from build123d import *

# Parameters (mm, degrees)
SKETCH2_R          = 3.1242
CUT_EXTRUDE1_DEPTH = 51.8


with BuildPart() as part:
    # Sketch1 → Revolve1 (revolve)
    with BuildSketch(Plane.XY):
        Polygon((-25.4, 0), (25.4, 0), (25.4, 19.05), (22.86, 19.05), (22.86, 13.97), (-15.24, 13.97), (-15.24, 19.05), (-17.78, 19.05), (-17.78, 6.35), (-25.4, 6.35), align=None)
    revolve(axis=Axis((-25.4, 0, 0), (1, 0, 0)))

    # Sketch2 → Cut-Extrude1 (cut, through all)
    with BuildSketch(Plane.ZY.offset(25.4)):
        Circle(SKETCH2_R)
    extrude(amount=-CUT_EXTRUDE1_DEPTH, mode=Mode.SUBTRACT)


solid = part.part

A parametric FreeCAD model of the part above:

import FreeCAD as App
import Part
import Sketcher

V = App.Vector
Q = App.Units.Quantity


def add_polygon(sketch, points):
    """Adds a closed chain of lines whose ends are joined by coincident constraints."""
    first, n = sketch.GeometryCount, len(points)
    for a, b in zip(points, points[1:] + points[:1]):
        sketch.addGeometry(Part.LineSegment(App.Vector(*a, 0), App.Vector(*b, 0)), False)
    for i in range(n):
        sketch.addConstraint(Sketcher.Constraint("Coincident", first + i, 2, first + (i + 1) % n, 1))

doc = App.newDocument("Part")
body = doc.addObject("PartDesign::Body", "Body")

sketch1 = doc.addObject("Sketcher::SketchObject", "Sketch")
body.addObject(sketch1)
sketch1.AttachmentSupport = (doc.XY_Plane, [""])
sketch1.MapMode = "FlatFace"
add_polygon(sketch1, [(-25.4, 0), (25.4, 0), (25.4, 19.1), (22.9, 19.1), (22.9, 14), (-15.2, 14), (-15.2, 19.1), (-17.8, 19.1), (-17.8, 6.3), (-25.4, 6.3)])
sketch1.addConstraint([
    Sketcher.Constraint("Horizontal", 0),
    Sketcher.Constraint("Vertical", 1),
    Sketcher.Constraint("Horizontal", 2),
    Sketcher.Constraint("Vertical", 3),
    Sketcher.Constraint("Horizontal", 4),
    Sketcher.Constraint("Vertical", 5),
    Sketcher.Constraint("Horizontal", 6),
    Sketcher.Constraint("Vertical", 7),
    Sketcher.Constraint("Horizontal", 8),
    Sketcher.Constraint("Vertical", 9),
    Sketcher.Constraint("Symmetric", 0, 2, 9, 2, -1, 1),
    Sketcher.Constraint("Horizontal", 2, 2, 5, 2),
    Sketcher.Constraint("Equal", 2, 6),
    Sketcher.Constraint("DistanceX", 0, 1, 0, 2, Q("2 in")),
    Sketcher.Constraint("DistanceX", 2, 2, 2, 1, Q("0.1 in")),
    Sketcher.Constraint("DistanceX", 4, 2, 4, 1, Q("1.5 in")),
    Sketcher.Constraint("DistanceY", 3, 2, 3, 1, Q("0.2 in")),
    Sketcher.Constraint("DistanceY", 7, 2, 7, 1, Q("0.5 in")),
    Sketcher.Constraint("DistanceY", 1, 1, 1, 2, Q("0.75 in")),
])
revolution = doc.addObject("PartDesign::Revolution", "Revolution")
body.addObject(revolution)
revolution.Profile = sketch1
revolution.ReferenceAxis = (sketch1, ["H_Axis"])
revolution.Angle = 360

sketch2 = doc.addObject("Sketcher::SketchObject", "Sketch001")
body.addObject(sketch2)
sketch2.AttachmentSupport = (doc.YZ_Plane, [""])
sketch2.MapMode = "FlatFace"
sketch2.AttachmentOffset = App.Placement(V(0, 0, -1 * 25.4), App.Rotation())
sketch2.addGeometry(Part.Circle(V(0, 0, 0), V(0, 0, 1), 3.1), False)
sketch2.addConstraint([
    Sketcher.Constraint("Coincident", 0, 3, -1, 1),
    Sketcher.Constraint("Diameter", 0, Q("0.246 in")),
])
pocket1 = doc.addObject("PartDesign::Pocket", "Pocket")
body.addObject(pocket1)
pocket1.Profile = sketch2
pocket1.Type = "ThroughAll"
pocket1.Reversed = True

doc.recompute()
